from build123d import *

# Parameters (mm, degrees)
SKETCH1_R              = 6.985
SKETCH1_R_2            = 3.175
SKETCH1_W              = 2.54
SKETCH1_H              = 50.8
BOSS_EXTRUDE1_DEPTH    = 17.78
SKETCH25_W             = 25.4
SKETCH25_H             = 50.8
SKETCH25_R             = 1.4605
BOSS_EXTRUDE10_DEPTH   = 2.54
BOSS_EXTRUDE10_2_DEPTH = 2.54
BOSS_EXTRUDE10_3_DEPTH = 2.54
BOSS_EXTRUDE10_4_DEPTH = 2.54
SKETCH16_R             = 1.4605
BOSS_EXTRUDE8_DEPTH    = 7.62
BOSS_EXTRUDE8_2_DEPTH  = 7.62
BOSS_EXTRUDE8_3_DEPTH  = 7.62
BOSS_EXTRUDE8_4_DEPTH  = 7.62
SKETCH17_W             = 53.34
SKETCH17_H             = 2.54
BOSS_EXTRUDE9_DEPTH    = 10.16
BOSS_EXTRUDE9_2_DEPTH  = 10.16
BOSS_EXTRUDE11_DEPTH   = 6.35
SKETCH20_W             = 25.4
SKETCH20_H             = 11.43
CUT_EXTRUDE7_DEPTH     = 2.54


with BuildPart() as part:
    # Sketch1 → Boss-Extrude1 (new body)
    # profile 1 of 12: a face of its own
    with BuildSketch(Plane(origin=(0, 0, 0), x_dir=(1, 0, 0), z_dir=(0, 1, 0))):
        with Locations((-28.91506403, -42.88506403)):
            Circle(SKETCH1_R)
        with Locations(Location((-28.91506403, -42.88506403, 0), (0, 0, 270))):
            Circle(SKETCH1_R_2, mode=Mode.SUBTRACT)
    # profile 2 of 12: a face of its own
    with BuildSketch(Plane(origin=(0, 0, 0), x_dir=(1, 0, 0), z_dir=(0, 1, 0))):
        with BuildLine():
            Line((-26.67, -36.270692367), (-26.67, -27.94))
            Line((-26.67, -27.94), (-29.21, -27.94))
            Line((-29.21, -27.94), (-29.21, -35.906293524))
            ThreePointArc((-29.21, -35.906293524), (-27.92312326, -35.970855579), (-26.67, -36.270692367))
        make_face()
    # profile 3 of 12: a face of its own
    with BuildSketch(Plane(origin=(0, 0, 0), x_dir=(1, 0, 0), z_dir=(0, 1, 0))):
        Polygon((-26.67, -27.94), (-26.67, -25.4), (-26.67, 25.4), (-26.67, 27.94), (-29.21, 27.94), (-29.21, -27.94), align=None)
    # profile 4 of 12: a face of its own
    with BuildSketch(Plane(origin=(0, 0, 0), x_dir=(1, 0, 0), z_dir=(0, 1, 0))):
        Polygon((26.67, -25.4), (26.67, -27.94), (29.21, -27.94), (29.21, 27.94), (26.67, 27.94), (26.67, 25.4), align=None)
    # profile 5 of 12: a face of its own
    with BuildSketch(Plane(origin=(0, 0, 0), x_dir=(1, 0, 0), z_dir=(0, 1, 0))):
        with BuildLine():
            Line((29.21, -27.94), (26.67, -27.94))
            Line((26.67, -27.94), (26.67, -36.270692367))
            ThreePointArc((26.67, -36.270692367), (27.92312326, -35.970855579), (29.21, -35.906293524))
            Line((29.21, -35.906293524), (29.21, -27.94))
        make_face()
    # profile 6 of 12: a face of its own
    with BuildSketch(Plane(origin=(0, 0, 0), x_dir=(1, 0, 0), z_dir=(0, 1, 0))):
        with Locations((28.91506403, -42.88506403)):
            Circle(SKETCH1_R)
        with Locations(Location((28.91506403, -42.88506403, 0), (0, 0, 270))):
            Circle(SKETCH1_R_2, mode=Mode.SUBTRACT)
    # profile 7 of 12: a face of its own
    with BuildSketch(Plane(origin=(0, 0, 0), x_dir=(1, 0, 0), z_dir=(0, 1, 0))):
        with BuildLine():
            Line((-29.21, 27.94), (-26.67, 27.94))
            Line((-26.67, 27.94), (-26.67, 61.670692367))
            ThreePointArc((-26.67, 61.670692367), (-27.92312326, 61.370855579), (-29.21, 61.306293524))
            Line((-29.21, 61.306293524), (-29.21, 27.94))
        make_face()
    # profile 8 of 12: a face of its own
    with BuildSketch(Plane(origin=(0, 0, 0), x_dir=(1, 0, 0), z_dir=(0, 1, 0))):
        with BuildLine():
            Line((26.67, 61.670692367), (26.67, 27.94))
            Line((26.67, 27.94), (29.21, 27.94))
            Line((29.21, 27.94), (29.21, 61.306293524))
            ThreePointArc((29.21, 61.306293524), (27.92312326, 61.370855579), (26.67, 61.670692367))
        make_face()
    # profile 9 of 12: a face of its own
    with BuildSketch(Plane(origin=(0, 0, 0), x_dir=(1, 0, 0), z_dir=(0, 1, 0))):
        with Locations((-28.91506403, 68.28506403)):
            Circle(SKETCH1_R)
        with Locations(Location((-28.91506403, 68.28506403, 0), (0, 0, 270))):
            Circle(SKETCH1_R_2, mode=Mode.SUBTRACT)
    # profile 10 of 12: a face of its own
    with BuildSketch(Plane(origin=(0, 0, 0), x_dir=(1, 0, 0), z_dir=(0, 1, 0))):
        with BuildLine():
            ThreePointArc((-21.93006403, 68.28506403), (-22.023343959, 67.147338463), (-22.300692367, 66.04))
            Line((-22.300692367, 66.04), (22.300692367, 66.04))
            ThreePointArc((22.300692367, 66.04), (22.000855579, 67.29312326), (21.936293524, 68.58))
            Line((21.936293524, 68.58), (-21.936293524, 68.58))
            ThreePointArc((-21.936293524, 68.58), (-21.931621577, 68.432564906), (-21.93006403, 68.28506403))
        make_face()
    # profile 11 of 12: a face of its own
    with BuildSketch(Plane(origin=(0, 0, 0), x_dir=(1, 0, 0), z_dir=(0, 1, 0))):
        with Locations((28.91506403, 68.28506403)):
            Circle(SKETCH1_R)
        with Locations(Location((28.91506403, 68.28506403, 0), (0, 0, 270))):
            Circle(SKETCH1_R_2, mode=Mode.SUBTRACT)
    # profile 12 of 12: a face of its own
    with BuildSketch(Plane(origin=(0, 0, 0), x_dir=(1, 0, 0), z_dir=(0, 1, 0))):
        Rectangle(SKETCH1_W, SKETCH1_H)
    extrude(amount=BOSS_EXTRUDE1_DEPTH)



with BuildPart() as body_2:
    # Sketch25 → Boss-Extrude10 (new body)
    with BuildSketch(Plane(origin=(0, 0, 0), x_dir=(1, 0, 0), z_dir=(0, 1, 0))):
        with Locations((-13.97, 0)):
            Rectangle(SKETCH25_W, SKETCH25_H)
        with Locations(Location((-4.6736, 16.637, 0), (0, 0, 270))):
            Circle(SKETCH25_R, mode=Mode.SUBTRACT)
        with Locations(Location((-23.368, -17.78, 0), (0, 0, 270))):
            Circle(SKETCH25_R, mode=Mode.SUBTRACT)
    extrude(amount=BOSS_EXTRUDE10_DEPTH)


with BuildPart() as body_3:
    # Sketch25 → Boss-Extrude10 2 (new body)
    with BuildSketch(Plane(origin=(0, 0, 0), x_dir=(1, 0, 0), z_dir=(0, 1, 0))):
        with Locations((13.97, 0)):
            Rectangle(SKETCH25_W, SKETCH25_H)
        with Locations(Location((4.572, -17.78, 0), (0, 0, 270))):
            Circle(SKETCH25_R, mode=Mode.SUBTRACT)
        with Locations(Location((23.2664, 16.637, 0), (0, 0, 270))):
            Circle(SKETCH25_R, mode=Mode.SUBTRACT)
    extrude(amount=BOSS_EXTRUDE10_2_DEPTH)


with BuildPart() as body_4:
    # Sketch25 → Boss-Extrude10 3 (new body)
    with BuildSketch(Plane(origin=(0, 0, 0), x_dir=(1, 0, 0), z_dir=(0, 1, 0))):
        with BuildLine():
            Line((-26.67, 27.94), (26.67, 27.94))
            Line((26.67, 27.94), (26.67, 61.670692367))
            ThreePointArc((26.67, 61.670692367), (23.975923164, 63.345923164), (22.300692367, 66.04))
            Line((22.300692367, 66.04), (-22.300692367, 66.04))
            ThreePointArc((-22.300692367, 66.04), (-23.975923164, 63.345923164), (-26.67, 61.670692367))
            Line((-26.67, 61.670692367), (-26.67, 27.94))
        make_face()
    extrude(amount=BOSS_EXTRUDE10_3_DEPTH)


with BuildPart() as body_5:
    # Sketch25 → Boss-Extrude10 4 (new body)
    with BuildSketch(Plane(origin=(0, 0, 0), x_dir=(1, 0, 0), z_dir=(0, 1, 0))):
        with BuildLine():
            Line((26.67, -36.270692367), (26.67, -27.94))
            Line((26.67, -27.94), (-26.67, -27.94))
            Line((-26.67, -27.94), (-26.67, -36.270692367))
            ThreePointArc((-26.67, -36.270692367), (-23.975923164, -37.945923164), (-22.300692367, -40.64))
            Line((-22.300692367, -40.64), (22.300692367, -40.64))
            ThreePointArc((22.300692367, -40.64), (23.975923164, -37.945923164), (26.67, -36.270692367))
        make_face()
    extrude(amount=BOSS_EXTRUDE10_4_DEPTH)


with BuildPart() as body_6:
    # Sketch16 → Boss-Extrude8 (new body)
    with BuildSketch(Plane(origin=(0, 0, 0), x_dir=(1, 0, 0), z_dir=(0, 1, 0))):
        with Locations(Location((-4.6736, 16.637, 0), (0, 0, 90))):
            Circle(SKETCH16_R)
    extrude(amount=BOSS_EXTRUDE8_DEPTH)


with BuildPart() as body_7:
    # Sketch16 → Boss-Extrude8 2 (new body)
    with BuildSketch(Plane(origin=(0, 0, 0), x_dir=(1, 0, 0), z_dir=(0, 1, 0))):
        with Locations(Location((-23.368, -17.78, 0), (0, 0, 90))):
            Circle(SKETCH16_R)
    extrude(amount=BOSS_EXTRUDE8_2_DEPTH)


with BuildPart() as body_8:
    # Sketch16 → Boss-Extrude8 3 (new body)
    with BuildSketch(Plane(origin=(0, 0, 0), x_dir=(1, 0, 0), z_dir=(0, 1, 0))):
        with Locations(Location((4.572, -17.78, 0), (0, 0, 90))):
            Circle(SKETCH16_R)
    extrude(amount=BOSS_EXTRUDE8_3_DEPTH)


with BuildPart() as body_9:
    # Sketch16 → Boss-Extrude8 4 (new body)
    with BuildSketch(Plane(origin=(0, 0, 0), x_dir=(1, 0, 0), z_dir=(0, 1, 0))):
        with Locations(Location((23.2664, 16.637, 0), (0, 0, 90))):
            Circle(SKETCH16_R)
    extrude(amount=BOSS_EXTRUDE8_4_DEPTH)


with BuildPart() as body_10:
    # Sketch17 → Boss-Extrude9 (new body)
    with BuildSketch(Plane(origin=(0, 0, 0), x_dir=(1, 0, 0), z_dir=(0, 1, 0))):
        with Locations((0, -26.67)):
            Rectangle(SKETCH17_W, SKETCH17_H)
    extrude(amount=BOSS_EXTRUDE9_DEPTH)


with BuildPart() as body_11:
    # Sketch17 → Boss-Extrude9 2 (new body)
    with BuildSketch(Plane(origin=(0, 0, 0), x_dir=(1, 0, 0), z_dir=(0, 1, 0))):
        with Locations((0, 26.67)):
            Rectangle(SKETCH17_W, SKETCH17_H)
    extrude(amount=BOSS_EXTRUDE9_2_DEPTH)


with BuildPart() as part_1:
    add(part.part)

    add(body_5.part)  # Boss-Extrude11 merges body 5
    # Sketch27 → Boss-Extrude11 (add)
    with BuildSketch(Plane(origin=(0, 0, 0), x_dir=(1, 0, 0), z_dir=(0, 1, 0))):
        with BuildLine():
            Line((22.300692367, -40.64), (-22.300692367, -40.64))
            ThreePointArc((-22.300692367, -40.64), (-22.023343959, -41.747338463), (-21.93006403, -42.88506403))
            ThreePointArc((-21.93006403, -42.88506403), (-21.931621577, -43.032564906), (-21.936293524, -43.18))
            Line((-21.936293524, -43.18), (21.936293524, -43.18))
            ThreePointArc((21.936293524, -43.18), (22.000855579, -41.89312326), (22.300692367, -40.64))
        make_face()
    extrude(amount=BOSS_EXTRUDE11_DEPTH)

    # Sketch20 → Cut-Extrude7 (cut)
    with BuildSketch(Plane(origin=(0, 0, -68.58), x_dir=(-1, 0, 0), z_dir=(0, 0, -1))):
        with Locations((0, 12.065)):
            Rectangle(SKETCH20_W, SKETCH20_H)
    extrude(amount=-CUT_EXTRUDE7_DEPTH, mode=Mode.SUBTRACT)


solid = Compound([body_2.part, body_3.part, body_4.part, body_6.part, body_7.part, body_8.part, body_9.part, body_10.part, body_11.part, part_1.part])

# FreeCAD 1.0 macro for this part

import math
import FreeCAD as App
import Part
import Sketcher

V = App.Vector
Q = App.Units.Quantity


def add_polygon(sketch, points):
    """Adds a closed chain of lines whose ends are joined by coincident constraints."""
    first, n = sketch.GeometryCount, len(points)
    for a, b in zip(points, points[1:] + points[:1]):
        sketch.addGeometry(Part.LineSegment(App.Vector(*a, 0), App.Vector(*b, 0)), False)
    for i in range(n):
        sketch.addConstraint(Sketcher.Constraint("Coincident", first + i, 2, first + (i + 1) % n, 1))

doc = App.newDocument("Part")
body = doc.addObject("PartDesign::Body", "Body")
body.AllowCompound = True

# Sketch on XZ plane
sketch1 = doc.addObject("Sketcher::SketchObject", "Sketch")
body.addObject(sketch1)
sketch1.AttachmentSupport = (doc.XZ_Plane, [""])
sketch1.MapMode = "FlatFace"
sketch1.addGeometry(Part.LineSegment(V(-26.67, 36.270692, 0), V(-26.67, -61.670692, 0)), False)  # 0
sketch1.addGeometry(Part.ArcOfCircle(Part.Circle(V(-28.915064, -68.285064, 0), V(0, 0, 1), 6.985), math.radians(18.748349), math.radians(71.251651)), False)  # 1
sketch1.addGeometry(Part.LineSegment(V(-22.300692, -66.04, 0), V(22.300692, -66.04, 0)), False)  # 2
sketch1.addGeometry(Part.ArcOfCircle(Part.Circle(V(28.915064, -68.285064, 0), V(0, 0, 1), 6.985), math.radians(108.748349), math.radians(161.251651)), False)  # 3
sketch1.addGeometry(Part.LineSegment(V(26.67, -61.670692, 0), V(26.67, 36.270692, 0)), False)  # 4
sketch1.addGeometry(Part.ArcOfCircle(Part.Circle(V(28.915064, 42.885064, 0), V(0, 0, 1), 6.985), math.radians(-87.580013), math.radians(251.251651)), False)  # 5
sketch1.addGeometry(Part.LineSegment(V(29.21, 35.906294, 0), V(29.21, -61.306294, 0)), False)  # 6
sketch1.addGeometry(Part.ArcOfCircle(Part.Circle(V(28.915064, -68.285064, 0), V(0, 0, 1), 6.985), math.radians(-177.580013), math.radians(87.580013)), False)  # 7
sketch1.addGeometry(Part.LineSegment(V(21.936294, -68.58, 0), V(-21.936294, -68.58, 0)), False)  # 8
sketch1.addGeometry(Part.ArcOfCircle(Part.Circle(V(-28.915064, -68.285064, 0), V(0, 0, 1), 6.985), math.radians(92.419987), math.radians(357.580013)), False)  # 9
sketch1.addGeometry(Part.LineSegment(V(-29.21, -61.306294, 0), V(-29.21, 35.906294, 0)), False)  # 10
sketch1.addGeometry(Part.ArcOfCircle(Part.Circle(V(-28.915064, 42.885064, 0), V(0, 0, 1), 6.985), math.radians(-71.251651), math.radians(267.580013)), False)  # 11
sketch1.addGeometry(Part.Circle(V(-28.915064, 42.885064, 0), V(0, 0, 1), 3.175), False)  # 12
sketch1.addGeometry(Part.Circle(V(-28.915064, -68.285064, 0), V(0, 0, 1), 3.175), False)  # 13
sketch1.addGeometry(Part.Circle(V(28.915064, -68.285064, 0), V(0, 0, 1), 3.175), False)  # 14
sketch1.addGeometry(Part.Circle(V(28.915064, 42.885064, 0), V(0, 0, 1), 3.175), False)  # 15
add_polygon(sketch1, [(-1.27, -25.4), (-1.27, 25.4), (1.27, 25.4), (1.27, -25.4)])  # lines 16-19
sketch1.addConstraint([
    Sketcher.Constraint("Coincident", 0, 2, 1, 2),
    Sketcher.Constraint("Coincident", 1, 1, 2, 1),
    Sketcher.Constraint("Coincident", 2, 2, 3, 2),
    Sketcher.Constraint("Coincident", 3, 1, 4, 1),
    Sketcher.Constraint("Coincident", 4, 2, 5, 2),
    Sketcher.Constraint("Coincident", 5, 1, 6, 1),
    Sketcher.Constraint("Coincident", 6, 2, 7, 2),
    Sketcher.Constraint("Coincident", 7, 1, 8, 1),
    Sketcher.Constraint("Coincident", 8, 2, 9, 2),
    Sketcher.Constraint("Coincident", 9, 1, 10, 1),
    Sketcher.Constraint("Coincident", 10, 2, 11, 2),
    Sketcher.Constraint("Coincident", 11, 1, 0, 1),
    Sketcher.Constraint("Vertical", 0),
    Sketcher.Constraint("Horizontal", 2),
    Sketcher.Constraint("Vertical", 4),
    Sketcher.Constraint("Vertical", 6),
    Sketcher.Constraint("Horizontal", 8),
    Sketcher.Constraint("Vertical", 10),
    Sketcher.Constraint("Vertical", 16),
    Sketcher.Constraint("Horizontal", 17),
    Sketcher.Constraint("Vertical", 18),
    Sketcher.Constraint("Horizontal", 19),
    Sketcher.Constraint("Coincident", 7, 3, 3, 3),
    Sketcher.Constraint("Coincident", 9, 3, 1, 3),
    Sketcher.Constraint("Coincident", 12, 3, 11, 3),
    Sketcher.Constraint("Coincident", 13, 3, 1, 3),
    Sketcher.Constraint("Coincident", 14, 3, 3, 3),
    Sketcher.Constraint("Coincident", 15, 3, 5, 3),
    Sketcher.Constraint("Equal", 1, 3),
    Sketcher.Constraint("Equal", 3, 5),
    Sketcher.Constraint("Equal", 5, 7),
    Sketcher.Constraint("Equal", 7, 9),
    Sketcher.Constraint("Equal", 9, 11),
    Sketcher.Constraint("Equal", 12, 13),
    Sketcher.Constraint("Equal", 13, 14),
    Sketcher.Constraint("Equal", 14, 15),
    Sketcher.Constraint("Symmetric", 16, 2, 18, 2, -1, 1),
    Sketcher.Constraint("Symmetric", 1, 3, 3, 3, -2),
    Sketcher.Constraint("Symmetric", 5, 3, 11, 3, -2),
    Sketcher.Constraint("Horizontal", 0, 2, 3, 1),
    Sketcher.Constraint("Horizontal", 6, 2, 9, 1),
    Sketcher.Constraint("Vertical", 3, 3, 5, 3),
    Sketcher.Constraint("Diameter", 12, Q("0.25 in")),
    Sketcher.Constraint("DistanceY", 16, 1, 16, 2, Q("2 in")),
    Sketcher.Constraint("DistanceX", 17, 1, 17, 2, Q("0.1 in")),
    Sketcher.Constraint("Radius", 1, Q("0.275 in")),
    Sketcher.Constraint("DistanceX", 11, 1, 16, 2, Q("1 in")),
    Sketcher.Constraint("DistanceY", 1, 1, -1, 1, Q("2.6 in")),
    Sketcher.Constraint("DistanceY", 7, 1, -1, 1, Q("2.7 in")),
    Sketcher.Constraint("DistanceX", 4, 2, 5, 1, Q("0.1 in")),
    Sketcher.Constraint("DistanceY", 5, 1, 4, 2, Q("0.364399 mm")),
    Sketcher.Constraint("DistanceX", 7, 1, 2, 2, Q("0.364399 mm")),
    Sketcher.Constraint("DistanceY", 0, 2, 0, 1, Q("97.941385 mm")),
])
pad1 = doc.addObject("PartDesign::Pad", "Pad")
body.addObject(pad1)
pad1.Profile = sketch1
pad1.Length = Q("0.7 in")
pad1.Reversed = True
body2 = doc.addObject("PartDesign::Body", "Body001")

# Sketch on XZ plane
sketch2 = doc.addObject("Sketcher::SketchObject", "Sketch001")
body2.addObject(sketch2)
sketch2.AttachmentSupport = (doc.getObject("XZ_Plane001"), [""])
sketch2.MapMode = "FlatFace"
add_polygon(sketch2, [(-26.67, -25.4), (-26.67, 25.4), (-1.27, 25.4), (-1.27, -25.4)])  # lines 0-3
sketch2.addGeometry(Part.Circle(V(-23.368, 17.78, 0), V(0, 0, 1), 1.4605), False)  # 4
sketch2.addGeometry(Part.Circle(V(-4.6736, -16.637, 0), V(0, 0, 1), 1.4605), False)  # 5
sketch2.addConstraint([
    Sketcher.Constraint("Vertical", 0),
    Sketcher.Constraint("Horizontal", 1),
    Sketcher.Constraint("Vertical", 2),
    Sketcher.Constraint("Horizontal", 3),
    Sketcher.Constraint("Equal", 4, 5),
    Sketcher.Constraint("DistanceX", 1, 1, 1, 2, Q("1 in")),
    Sketcher.Constraint("DistanceY", 0, 1, 0, 2, Q("2 in")),
    Sketcher.Constraint("Diameter", 4, Q("0.115 in")),
    Sketcher.Constraint("DistanceY", -1, 1, 0, 2, Q("1 in")),
    Sketcher.Constraint("DistanceY", -1, 1, 4, 3, Q("0.7 in")),
    Sketcher.Constraint("DistanceX", 4, 3, -1, 1, Q("0.92 in")),
    Sketcher.Constraint("DistanceX", 0, 2, -1, 1, Q("1.05 in")),
    Sketcher.Constraint("DistanceX", 5, 3, -1, 1, Q("0.184 in")),
    Sketcher.Constraint("DistanceY", 5, 3, -1, 1, Q("0.655 in")),
])
pad2 = doc.addObject("PartDesign::Pad", "Pad001")
body2.addObject(pad2)
pad2.Profile = sketch2
pad2.Length = Q("0.1 in")
pad2.Reversed = True
body3 = doc.addObject("PartDesign::Body", "Body002")

# Sketch on XZ plane
sketch3 = doc.addObject("Sketcher::SketchObject", "Sketch002")
body3.addObject(sketch3)
sketch3.AttachmentSupport = (doc.getObject("XZ_Plane002"), [""])
sketch3.MapMode = "FlatFace"
add_polygon(sketch3, [(1.27, -25.4), (1.27, 25.4), (26.67, 25.4), (26.67, -25.4)])  # lines 0-3
sketch3.addGeometry(Part.Circle(V(4.572, 17.78, 0), V(0, 0, 1), 1.4605), False)  # 4
sketch3.addGeometry(Part.Circle(V(23.2664, -16.637, 0), V(0, 0, 1), 1.4605), False)  # 5
sketch3.addConstraint([
    Sketcher.Constraint("Vertical", 0),
    Sketcher.Constraint("Horizontal", 1),
    Sketcher.Constraint("Vertical", 2),
    Sketcher.Constraint("Horizontal", 3),
    Sketcher.Constraint("Equal", 4, 5),
    Sketcher.Constraint("DistanceX", 1, 1, 1, 2, Q("1 in")),
    Sketcher.Constraint("DistanceY", 0, 1, 0, 2, Q("2 in")),
    Sketcher.Constraint("Diameter", 4, Q("0.115 in")),
    Sketcher.Constraint("DistanceY", -1, 1, 0, 2, Q("1 in")),
    Sketcher.Constraint("DistanceY", -1, 1, 4, 3, Q("0.7 in")),
    Sketcher.Constraint("DistanceX", -1, 1, 4, 3, Q("0.18 in")),
    Sketcher.Constraint("DistanceX", -1, 1, 0, 2, Q("0.05 in")),
    Sketcher.Constraint("DistanceX", -1, 1, 5, 3, Q("0.916 in")),
    Sketcher.Constraint("DistanceY", 5, 3, -1, 1, Q("0.655 in")),
])
pad3 = doc.addObject("PartDesign::Pad", "Pad002")
body3.addObject(pad3)
pad3.Profile = sketch3
pad3.Length = Q("0.1 in")
pad3.Reversed = True
body4 = doc.addObject("PartDesign::Body", "Body003")

# Sketch on XZ plane
sketch4 = doc.addObject("Sketcher::SketchObject", "Sketch003")
body4.addObject(sketch4)
sketch4.AttachmentSupport = (doc.getObject("XZ_Plane003"), [""])
sketch4.MapMode = "FlatFace"
sketch4.addGeometry([
    Part.LineSegment(V(-26.67, -27.94, 0), V(26.67, -27.94, 0)),  # 0
    Part.LineSegment(V(26.67, -27.94, 0), V(26.67, -61.670692, 0)),  # 1
    Part.ArcOfCircle(Part.Circle(V(28.915064, -68.285064, 0), V(0, 0, 1), 6.985), math.radians(108.748349), math.radians(161.251651)),  # 2
    Part.LineSegment(V(22.300692, -66.04, 0), V(-22.300692, -66.04, 0)),  # 3
    Part.ArcOfCircle(Part.Circle(V(-28.915064, -68.285064, 0), V(0, 0, 1), 6.985), math.radians(18.748349), math.radians(71.251651)),  # 4
    Part.LineSegment(V(-26.67, -61.670692, 0), V(-26.67, -27.94, 0)),  # 5
], False)
sketch4.addConstraint([
    Sketcher.Constraint("Coincident", 0, 2, 1, 1),
    Sketcher.Constraint("Coincident", 1, 2, 2, 1),
    Sketcher.Constraint("Coincident", 2, 2, 3, 1),
    Sketcher.Constraint("Coincident", 3, 2, 4, 1),
    Sketcher.Constraint("Coincident", 4, 2, 5, 1),
    Sketcher.Constraint("Coincident", 5, 2, 0, 1),
    Sketcher.Constraint("Horizontal", 0),
    Sketcher.Constraint("Vertical", 1),
    Sketcher.Constraint("Horizontal", 3),
    Sketcher.Constraint("Vertical", 5),
    Sketcher.Constraint("Equal", 2, 4),
    Sketcher.Constraint("Symmetric", 2, 3, 4, 3, -2),
    Sketcher.Constraint("Horizontal", 1, 2, 4, 2),
    Sketcher.Constraint("DistanceX", 0, 1, 0, 2, Q("2.1 in")),
    Sketcher.Constraint("Radius", 2, Q("0.275 in")),
    Sketcher.Constraint("DistanceY", 0, 2, -1, 1, Q("1.1 in")),
    Sketcher.Constraint("DistanceY", 2, 2, -1, 1, Q("2.6 in")),
    Sketcher.Constraint("DistanceX", 3, 2, 3, 1, Q("44.601385 mm")),
    Sketcher.Constraint("DistanceY", 1, 2, 1, 1, Q("33.730692 mm")),
])
pad4 = doc.addObject("PartDesign::Pad", "Pad003")
body4.addObject(pad4)
pad4.Profile = sketch4
pad4.Length = Q("0.1 in")
pad4.Reversed = True
body5 = doc.addObject("PartDesign::Body", "Body004")

# Sketch on XZ plane
sketch5 = doc.addObject("Sketcher::SketchObject", "Sketch004")
body5.addObject(sketch5)
sketch5.AttachmentSupport = (doc.getObject("XZ_Plane004"), [""])
sketch5.MapMode = "FlatFace"
sketch5.addGeometry([
    Part.LineSegment(V(26.67, 36.270692, 0), V(26.67, 27.94, 0)),  # 0
    Part.LineSegment(V(26.67, 27.94, 0), V(-26.67, 27.94, 0)),  # 1
    Part.LineSegment(V(-26.67, 27.94, 0), V(-26.67, 36.270692, 0)),  # 2
    Part.ArcOfCircle(Part.Circle(V(-28.915064, 42.885064, 0), V(0, 0, 1), 6.985), math.radians(-71.251651), math.radians(-18.748349)),  # 3
    Part.LineSegment(V(-22.300692, 40.64, 0), V(22.300692, 40.64, 0)),  # 4
    Part.ArcOfCircle(Part.Circle(V(28.915064, 42.885064, 0), V(0, 0, 1), 6.985), math.radians(-161.251651), math.radians(-108.748349)),  # 5
], False)
sketch5.addConstraint([
    Sketcher.Constraint("Coincident", 0, 2, 1, 1),
    Sketcher.Constraint("Coincident", 1, 2, 2, 1),
    Sketcher.Constraint("Coincident", 2, 2, 3, 1),
    Sketcher.Constraint("Coincident", 3, 2, 4, 1),
    Sketcher.Constraint("Coincident", 4, 2, 5, 1),
    Sketcher.Constraint("Coincident", 5, 2, 0, 1),
    Sketcher.Constraint("Vertical", 0),
    Sketcher.Constraint("Horizontal", 1),
    Sketcher.Constraint("Vertical", 2),
    Sketcher.Constraint("Horizontal", 4),
    Sketcher.Constraint("Equal", 3, 5),
    Sketcher.Constraint("Symmetric", 3, 3, 5, 3, -2),
    Sketcher.Constraint("Horizontal", 2, 2, 5, 2),
    Sketcher.Constraint("DistanceX", 1, 2, 1, 1, Q("2.1 in")),
    Sketcher.Constraint("Radius", 3, Q("0.275 in")),
    Sketcher.Constraint("DistanceY", -1, 1, 0, 2, Q("1.1 in")),
    Sketcher.Constraint("DistanceY", -1, 1, 3, 2, Q("1.6 in")),
    Sketcher.Constraint("DistanceX", 4, 1, 4, 2, Q("44.601385 mm")),
    Sketcher.Constraint("DistanceY", 0, 2, 0, 1, Q("8.330692 mm")),
])
pad5 = doc.addObject("PartDesign::Pad", "Pad004")
body5.addObject(pad5)
pad5.Profile = sketch5
pad5.Length = Q("0.1 in")
pad5.Reversed = True
body6 = doc.addObject("PartDesign::Body", "Body005")

# Sketch on XZ plane
sketch6 = doc.addObject("Sketcher::SketchObject", "Sketch005")
body6.addObject(sketch6)
sketch6.AttachmentSupport = (doc.getObject("XZ_Plane005"), [""])
sketch6.MapMode = "FlatFace"
sketch6.addGeometry(Part.Circle(V(-4.6736, -16.637, 0), V(0, 0, 1), 1.4605), False)
sketch6.addConstraint([
    Sketcher.Constraint("Diameter", 0, Q("0.115 in")),
    Sketcher.Constraint("DistanceX", 0, 3, -1, 1, Q("0.184 in")),
    Sketcher.Constraint("DistanceY", 0, 3, -1, 1, Q("0.655 in")),
])
pad6 = doc.addObject("PartDesign::Pad", "Pad005")
body6.addObject(pad6)
pad6.Profile = sketch6
pad6.Length = Q("0.3 in")
pad6.Reversed = True
body7 = doc.addObject("PartDesign::Body", "Body006")

# Sketch on XZ plane
sketch7 = doc.addObject("Sketcher::SketchObject", "Sketch006")
body7.addObject(sketch7)
sketch7.AttachmentSupport = (doc.getObject("XZ_Plane006"), [""])
sketch7.MapMode = "FlatFace"
sketch7.addGeometry(Part.Circle(V(-23.368, 17.78, 0), V(0, 0, 1), 1.4605), False)
sketch7.addConstraint([
    Sketcher.Constraint("Diameter", 0, Q("0.115 in")),
    Sketcher.Constraint("DistanceY", -1, 1, 0, 3, Q("0.7 in")),
    Sketcher.Constraint("DistanceX", 0, 3, -1, 1, Q("0.92 in")),
])
pad7 = doc.addObject("PartDesign::Pad", "Pad006")
body7.addObject(pad7)
pad7.Profile = sketch7
pad7.Length = Q("0.3 in")
pad7.Reversed = True
body8 = doc.addObject("PartDesign::Body", "Body007")

# Sketch on XZ plane
sketch8 = doc.addObject("Sketcher::SketchObject", "Sketch007")
body8.addObject(sketch8)
sketch8.AttachmentSupport = (doc.getObject("XZ_Plane007"), [""])
sketch8.MapMode = "FlatFace"
sketch8.addGeometry(Part.Circle(V(4.572, 17.78, 0), V(0, 0, 1), 1.4605), False)
sketch8.addConstraint([
    Sketcher.Constraint("Diameter", 0, Q("0.115 in")),
    Sketcher.Constraint("DistanceY", -1, 1, 0, 3, Q("0.7 in")),
    Sketcher.Constraint("DistanceX", -1, 1, 0, 3, Q("0.18 in")),
])
pad8 = doc.addObject("PartDesign::Pad", "Pad007")
body8.addObject(pad8)
pad8.Profile = sketch8
pad8.Length = Q("0.3 in")
pad8.Reversed = True
body9 = doc.addObject("PartDesign::Body", "Body008")

# Sketch on XZ plane
sketch9 = doc.addObject("Sketcher::SketchObject", "Sketch008")
body9.addObject(sketch9)
sketch9.AttachmentSupport = (doc.getObject("XZ_Plane008"), [""])
sketch9.MapMode = "FlatFace"
sketch9.addGeometry(Part.Circle(V(23.2664, -16.637, 0), V(0, 0, 1), 1.4605), False)
sketch9.addConstraint([
    Sketcher.Constraint("Diameter", 0, Q("0.115 in")),
    Sketcher.Constraint("DistanceX", -1, 1, 0, 3, Q("0.916 in")),
    Sketcher.Constraint("DistanceY", 0, 3, -1, 1, Q("0.655 in")),
])
pad9 = doc.addObject("PartDesign::Pad", "Pad008")
body9.addObject(pad9)
pad9.Profile = sketch9
pad9.Length = Q("0.3 in")
pad9.Reversed = True
body10 = doc.addObject("PartDesign::Body", "Body009")

# Sketch on XZ plane
sketch10 = doc.addObject("Sketcher::SketchObject", "Sketch009")
body10.addObject(sketch10)
sketch10.AttachmentSupport = (doc.getObject("XZ_Plane009"), [""])
sketch10.MapMode = "FlatFace"
add_polygon(sketch10, [(-26.67, 25.4), (-26.67, 27.94), (26.67, 27.94), (26.67, 25.4)])  # lines 0-3
sketch10.addConstraint([
    Sketcher.Constraint("Vertical", 0),
    Sketcher.Constraint("Horizontal", 1),
    Sketcher.Constraint("Vertical", 2),
    Sketcher.Constraint("Horizontal", 3),
    Sketcher.Constraint("DistanceX", 1, 1, 1, 2, Q("2.1 in")),
    Sketcher.Constraint("DistanceY", 0, 1, 0, 2, Q("0.1 in")),
    Sketcher.Constraint("DistanceY", -1, 1, 2, 2, Q("1 in")),
    Sketcher.Constraint("DistanceX", 0, 2, -1, 1, Q("1.05 in")),
])
pad10 = doc.addObject("PartDesign::Pad", "Pad009")
body10.addObject(pad10)
pad10.Profile = sketch10
pad10.Length = Q("0.4 in")
pad10.Reversed = True
body11 = doc.addObject("PartDesign::Body", "Body010")

# Sketch on XZ plane
sketch11 = doc.addObject("Sketcher::SketchObject", "Sketch010")
body11.addObject(sketch11)
sketch11.AttachmentSupport = (doc.getObject("XZ_Plane010"), [""])
sketch11.MapMode = "FlatFace"
add_polygon(sketch11, [(-26.67, -27.94), (-26.67, -25.4), (26.67, -25.4), (26.67, -27.94)])  # lines 0-3
sketch11.addConstraint([
    Sketcher.Constraint("Vertical", 0),
    Sketcher.Constraint("Horizontal", 1),
    Sketcher.Constraint("Vertical", 2),
    Sketcher.Constraint("Horizontal", 3),
    Sketcher.Constraint("DistanceX", 1, 1, 1, 2, Q("2.1 in")),
    Sketcher.Constraint("DistanceY", 0, 1, 0, 2, Q("0.1 in")),
    Sketcher.Constraint("DistanceY", 0, 2, -1, 1, Q("1 in")),
    Sketcher.Constraint("DistanceX", 0, 2, -1, 1, Q("1.05 in")),
])
pad11 = doc.addObject("PartDesign::Pad", "Pad010")
body11.addObject(pad11)
pad11.Profile = sketch11
pad11.Length = Q("0.4 in")
pad11.Reversed = True
body.AllowCompound = True
doc.recompute()

boolean = doc.addObject("PartDesign::Boolean", "Boolean")
body.addObject(boolean)
boolean.Type = "Fuse"
boolean.addObjects([body5])

# Sketch on XZ plane
sketch12 = doc.addObject("Sketcher::SketchObject", "Sketch011")
body.addObject(sketch12)
sketch12.AttachmentSupport = (doc.XZ_Plane, [""])
sketch12.MapMode = "FlatFace"
sketch12.addGeometry([
    Part.LineSegment(V(22.300692, 40.64, 0), V(-22.300692, 40.64, 0)),  # 0
    Part.ArcOfCircle(Part.Circle(V(-28.915064, 42.885064, 0), V(0, 0, 1), 6.985), math.radians(-18.748349), math.radians(0)),  # 1
    Part.ArcOfCircle(Part.Circle(V(-28.915063, 42.885064, 0), V(0, 0, 1), 6.984999), math.radians(0), math.radians(2.419987)),  # 2
    Part.LineSegment(V(-21.936294, 43.18, 0), V(21.936294, 43.18, 0)),  # 3
    Part.ArcOfCircle(Part.Circle(V(28.915064, 42.885064, 0), V(0, 0, 1), 6.985), math.radians(177.580013), math.radians(198.748349)),  # 4
], False)
sketch12.addConstraint([
    Sketcher.Constraint("Coincident", 0, 2, 1, 1),
    Sketcher.Constraint("Tangent", 1, 2, 2, 1),
    Sketcher.Constraint("Coincident", 2, 2, 3, 1),
    Sketcher.Constraint("Coincident", 3, 2, 4, 1),
    Sketcher.Constraint("Coincident", 4, 2, 0, 1),
    Sketcher.Constraint("Horizontal", 0),
    Sketcher.Constraint("Horizontal", 3),
    Sketcher.Constraint("Equal", 1, 2),
    Sketcher.Constraint("Equal", 2, 4),
    Sketcher.Constraint("Symmetric", 1, 3, 4, 3, -2),
    Sketcher.Constraint("Horizontal", 4, 3, 1, 2),
    Sketcher.Constraint("Radius", 1, Q("0.275 in")),
    Sketcher.Constraint("DistanceY", -1, 1, 0, 2, Q("1.6 in")),
    Sketcher.Constraint("DistanceY", -1, 1, 2, 2, Q("1.7 in")),
    Sketcher.Constraint("DistanceX", 0, 2, 2, 2, Q("0.364399 mm")),
    Sketcher.Constraint("DistanceX", 0, 2, 0, 1, Q("44.601385 mm")),
])
pad12 = doc.addObject("PartDesign::Pad", "Pad011")
body.addObject(pad12)
pad12.Profile = sketch12
pad12.Length = Q("0.25 in")
pad12.Reversed = True

# Sketch on XY plane
sketch13 = doc.addObject("Sketcher::SketchObject", "Sketch012")
body.addObject(sketch13)
sketch13.AttachmentSupport = (doc.XY_Plane, [""])
sketch13.MapMode = "FlatFace"
sketch13.AttachmentOffset = App.Placement(V(0, 0, -2.7 * 25.4), App.Rotation())
add_polygon(sketch13, [(12.7, 17.78), (12.7, 6.35), (-12.7, 6.35), (-12.7, 17.78)])  # lines 0-3
sketch13.addConstraint([
    Sketcher.Constraint("Vertical", 0),
    Sketcher.Constraint("Horizontal", 1),
    Sketcher.Constraint("Vertical", 2),
    Sketcher.Constraint("Horizontal", 3),
    Sketcher.Constraint("DistanceX", 1, 2, 1, 1, Q("1 in")),
    Sketcher.Constraint("DistanceY", 0, 2, 0, 1, Q("0.45 in")),
    Sketcher.Constraint("DistanceX", -1, 1, 0, 2, Q("0.5 in")),
    Sketcher.Constraint("DistanceY", -1, 1, 2, 2, Q("0.7 in")),
])
pocket1 = doc.addObject("PartDesign::Pocket", "Pocket")
body.addObject(pocket1)
pocket1.Profile = sketch13
pocket1.Length = Q("0.1 in")
pocket1.Reversed = True

doc.recompute()
